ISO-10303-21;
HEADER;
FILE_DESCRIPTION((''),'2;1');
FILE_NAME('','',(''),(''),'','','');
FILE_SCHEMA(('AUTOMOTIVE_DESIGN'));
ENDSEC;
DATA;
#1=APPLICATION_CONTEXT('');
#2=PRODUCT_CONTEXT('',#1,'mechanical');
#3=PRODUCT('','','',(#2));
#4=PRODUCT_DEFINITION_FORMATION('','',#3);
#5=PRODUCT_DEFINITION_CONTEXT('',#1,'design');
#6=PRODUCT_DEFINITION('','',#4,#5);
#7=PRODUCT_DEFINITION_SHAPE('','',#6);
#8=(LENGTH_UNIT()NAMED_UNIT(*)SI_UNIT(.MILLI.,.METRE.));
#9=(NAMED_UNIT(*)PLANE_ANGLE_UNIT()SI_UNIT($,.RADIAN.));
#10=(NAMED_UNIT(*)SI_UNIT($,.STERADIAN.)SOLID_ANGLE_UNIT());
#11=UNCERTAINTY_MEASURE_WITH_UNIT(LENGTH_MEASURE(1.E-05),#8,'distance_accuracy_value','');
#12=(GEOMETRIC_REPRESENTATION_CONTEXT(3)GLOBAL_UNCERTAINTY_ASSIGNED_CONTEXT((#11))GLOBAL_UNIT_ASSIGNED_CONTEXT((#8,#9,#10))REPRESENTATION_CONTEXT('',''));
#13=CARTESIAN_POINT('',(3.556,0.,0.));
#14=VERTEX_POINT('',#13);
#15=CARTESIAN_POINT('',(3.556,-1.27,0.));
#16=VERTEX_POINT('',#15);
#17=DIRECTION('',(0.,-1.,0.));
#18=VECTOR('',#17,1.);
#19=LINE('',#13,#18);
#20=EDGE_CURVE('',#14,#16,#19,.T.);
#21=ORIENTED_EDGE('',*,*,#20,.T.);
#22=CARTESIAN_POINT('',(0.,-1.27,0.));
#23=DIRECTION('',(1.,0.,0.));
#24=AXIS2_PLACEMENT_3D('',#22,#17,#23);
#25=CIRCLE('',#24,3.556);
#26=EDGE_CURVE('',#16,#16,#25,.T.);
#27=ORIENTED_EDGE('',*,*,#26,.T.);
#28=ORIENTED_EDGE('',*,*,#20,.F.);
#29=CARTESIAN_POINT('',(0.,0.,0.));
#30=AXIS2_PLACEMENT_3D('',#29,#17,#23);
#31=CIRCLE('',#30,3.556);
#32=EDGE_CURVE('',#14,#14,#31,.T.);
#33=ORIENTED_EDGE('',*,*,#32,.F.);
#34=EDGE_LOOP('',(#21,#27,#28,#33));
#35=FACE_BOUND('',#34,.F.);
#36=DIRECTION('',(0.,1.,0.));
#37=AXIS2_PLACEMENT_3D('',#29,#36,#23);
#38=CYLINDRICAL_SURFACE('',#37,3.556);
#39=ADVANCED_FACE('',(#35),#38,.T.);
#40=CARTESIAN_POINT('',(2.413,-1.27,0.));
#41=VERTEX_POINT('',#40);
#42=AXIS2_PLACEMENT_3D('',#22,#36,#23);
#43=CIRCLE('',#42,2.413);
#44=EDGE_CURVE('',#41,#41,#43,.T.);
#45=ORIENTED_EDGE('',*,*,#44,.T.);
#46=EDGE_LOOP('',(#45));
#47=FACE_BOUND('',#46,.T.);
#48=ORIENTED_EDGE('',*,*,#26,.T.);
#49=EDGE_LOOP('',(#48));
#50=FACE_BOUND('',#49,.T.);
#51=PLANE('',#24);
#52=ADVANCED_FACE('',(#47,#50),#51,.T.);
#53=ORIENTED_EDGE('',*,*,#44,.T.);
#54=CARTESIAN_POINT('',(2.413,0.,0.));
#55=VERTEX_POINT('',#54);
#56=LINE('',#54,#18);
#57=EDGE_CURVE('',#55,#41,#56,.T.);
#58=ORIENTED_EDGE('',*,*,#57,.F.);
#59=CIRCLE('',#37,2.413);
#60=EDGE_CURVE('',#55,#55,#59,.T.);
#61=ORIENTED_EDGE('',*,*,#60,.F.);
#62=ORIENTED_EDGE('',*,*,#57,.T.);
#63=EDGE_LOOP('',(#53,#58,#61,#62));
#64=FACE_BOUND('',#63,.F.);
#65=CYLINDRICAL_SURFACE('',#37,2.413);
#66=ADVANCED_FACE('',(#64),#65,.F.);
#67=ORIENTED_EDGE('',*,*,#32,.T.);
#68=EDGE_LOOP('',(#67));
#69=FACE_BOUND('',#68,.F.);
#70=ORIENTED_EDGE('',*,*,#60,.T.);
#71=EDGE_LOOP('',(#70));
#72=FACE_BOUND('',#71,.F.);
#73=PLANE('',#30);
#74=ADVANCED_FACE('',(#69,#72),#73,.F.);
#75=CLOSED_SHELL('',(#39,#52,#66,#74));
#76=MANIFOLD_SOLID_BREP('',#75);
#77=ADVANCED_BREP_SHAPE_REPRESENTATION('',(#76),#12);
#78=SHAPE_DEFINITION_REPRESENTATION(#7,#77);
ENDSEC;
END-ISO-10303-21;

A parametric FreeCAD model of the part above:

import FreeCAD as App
import Part
import Sketcher
from FreeCAD import Vector
Q = App.Units.Quantity

doc = App.newDocument("Part")
body = doc.addObject("PartDesign::Body", "Body")

sketch1 = body.newObject("Sketcher::SketchObject", "Sketch")
sketch1.AttachmentSupport = (doc.getObject("XZ_Plane"), [""])
sketch1.MapMode = "FlatFace"
sketch1.addGeometry(Part.Circle(Vector(0, 0, 0), Vector(0, 0, 1), 3.556), False)
sketch1.addGeometry(Part.Circle(Vector(0, 0, 0), Vector(0, 0, 1), 2.413), False)
sketch1.addConstraint(Sketcher.Constraint("Coincident", 0, 3, -1, 1))
sketch1.addConstraint(Sketcher.Constraint("Coincident", 1, 3, -1, 1))
sketch1.addConstraint(Sketcher.Constraint("Diameter", 0, Q("0.28 in")))
sketch1.addConstraint(Sketcher.Constraint("Diameter", 1, Q("0.19 in")))
pad1 = body.newObject("PartDesign::Pad", "Pad")
pad1.Profile = sketch1
pad1.Length = Q("0.05 in")

doc.recompute()
